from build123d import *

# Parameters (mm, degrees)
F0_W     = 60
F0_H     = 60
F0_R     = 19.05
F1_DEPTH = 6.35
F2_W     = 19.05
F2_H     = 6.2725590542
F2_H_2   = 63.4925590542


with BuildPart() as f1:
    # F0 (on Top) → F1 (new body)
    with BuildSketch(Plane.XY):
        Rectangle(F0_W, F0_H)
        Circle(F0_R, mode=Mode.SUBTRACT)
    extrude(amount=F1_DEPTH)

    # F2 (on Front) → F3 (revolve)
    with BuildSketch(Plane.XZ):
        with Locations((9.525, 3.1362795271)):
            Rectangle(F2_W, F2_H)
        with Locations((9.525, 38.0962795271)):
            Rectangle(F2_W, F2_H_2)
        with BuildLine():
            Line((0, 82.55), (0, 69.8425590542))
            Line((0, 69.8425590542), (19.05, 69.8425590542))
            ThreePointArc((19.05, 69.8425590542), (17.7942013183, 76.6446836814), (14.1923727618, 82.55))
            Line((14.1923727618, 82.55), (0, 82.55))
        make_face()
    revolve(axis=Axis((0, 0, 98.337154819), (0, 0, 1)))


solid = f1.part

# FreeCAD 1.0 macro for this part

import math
import FreeCAD as App
import Part
import Sketcher
from FreeCAD import Vector
Q = App.Units.Quantity


def add_polygon(sketch, points):
    """Adds a closed chain of lines whose ends are joined by coincident constraints."""
    first, n = sketch.GeometryCount, len(points)
    for a, b in zip(points, points[1:] + points[:1]):
        sketch.addGeometry(Part.LineSegment(App.Vector(*a, 0), App.Vector(*b, 0)), False)
    for i in range(n):
        sketch.addConstraint(Sketcher.Constraint("Coincident", first + i, 2, first + (i + 1) % n, 1))

doc = App.newDocument("Part")
body = doc.addObject("PartDesign::Body", "Body")
body.AllowCompound = True

# Sketch on XY plane
sketch1 = body.newObject("Sketcher::SketchObject", "Sketch")
sketch1.AttachmentSupport = (doc.getObject("XY_Plane"), [""])
sketch1.MapMode = "FlatFace"
add_polygon(sketch1, [(-30, 30), (-30, -30), (30, -30), (30, 30)])  # lines 0-3
sketch1.addGeometry(Part.Circle(Vector(0, 0, 0), Vector(0, 0, 1), 19.05), False)  # 4
sketch1.addConstraint(Sketcher.Constraint("Vertical", 0))
sketch1.addConstraint(Sketcher.Constraint("Horizontal", 1))
sketch1.addConstraint(Sketcher.Constraint("Vertical", 2))
sketch1.addConstraint(Sketcher.Constraint("Horizontal", 3))
sketch1.addConstraint(Sketcher.Constraint("Coincident", 4, 3, -1, 1))
sketch1.addConstraint(Sketcher.Constraint("Symmetric", 0, 2, 2, 2, -1, 1))
sketch1.addConstraint(Sketcher.Constraint("Equal", 3, 0))
sketch1.addConstraint(Sketcher.Constraint("Diameter", 4, Q("1.5 in")))
sketch1.addConstraint(Sketcher.Constraint("DistanceX", 1, 1, 1, 2, 60.0))
pad1 = body.newObject("PartDesign::Pad", "Pad")
pad1.Profile = sketch1
pad1.Length = Q("0.25 in")

# Sketch on XZ plane
sketch2 = body.newObject("Sketcher::SketchObject", "Sketch001")
sketch2.AttachmentSupport = (doc.getObject("XZ_Plane"), [""])
sketch2.MapMode = "FlatFace"
add_polygon(sketch2, [(0, 6.272559), (0, 0), (19.05, 0), (19.05, 6.272559)])  # lines 0-3
sketch2.addGeometry(Part.LineSegment(Vector(0, 6.35, 0), Vector(19.05, 6.35, 0)), False)  # 4
sketch2.addGeometry(Part.LineSegment(Vector(19.05, 6.35, 0), Vector(19.05, 69.842559, 0)), False)  # 5
sketch2.addGeometry(Part.ArcOfCircle(Part.Circle(Vector(0, 69.842559, 0), Vector(0, 0, 1), 19.05), math.radians(0), math.radians(41.840348)), False)  # 6
sketch2.addGeometry(Part.LineSegment(Vector(14.192373, 82.55, 0), Vector(0, 82.55, 0)), False)  # 7
sketch2.addGeometry(Part.LineSegment(Vector(0, 82.55, 0), Vector(0, 6.35, 0)), False)  # 8
sketch2.addConstraint(Sketcher.Constraint("Coincident", 4, 2, 5, 1))
sketch2.addConstraint(Sketcher.Constraint("Tangent", 5, 2, 6, 1))
sketch2.addConstraint(Sketcher.Constraint("Coincident", 6, 2, 7, 1))
sketch2.addConstraint(Sketcher.Constraint("Coincident", 7, 2, 8, 1))
sketch2.addConstraint(Sketcher.Constraint("Coincident", 8, 2, 4, 1))
sketch2.addConstraint(Sketcher.Constraint("Vertical", 0))
sketch2.addConstraint(Sketcher.Constraint("Horizontal", 1))
sketch2.addConstraint(Sketcher.Constraint("Vertical", 2))
sketch2.addConstraint(Sketcher.Constraint("Horizontal", 3))
sketch2.addConstraint(Sketcher.Constraint("Horizontal", 4))
sketch2.addConstraint(Sketcher.Constraint("Vertical", 5))
sketch2.addConstraint(Sketcher.Constraint("Horizontal", 7))
sketch2.addConstraint(Sketcher.Constraint("Vertical", 8))
sketch2.addConstraint(Sketcher.Constraint("Coincident", 0, 2, -1, 1))
sketch2.addConstraint(Sketcher.Constraint("PointOnObject", 6, 3, -2))
sketch2.addConstraint(Sketcher.Constraint("PointOnObject", 7, 2, -2))
sketch2.addConstraint(Sketcher.Constraint("Vertical", 2, 2, 4, 2))
sketch2.addConstraint(Sketcher.Constraint("DistanceY", 8, 2, 8, 1, Q("3 in")))
sketch2.addConstraint(Sketcher.Constraint("Radius", 6, Q("0.75 in")))
sketch2.addConstraint(Sketcher.Constraint("DistanceY", -1, 1, 4, 2, Q("0.25 in")))
sketch2.addConstraint(Sketcher.Constraint("DistanceY", 0, 2, 0, 1, 6.272559))
sketch2.addConstraint(Sketcher.Constraint("DistanceY", 5, 1, 5, 2, 63.492559))
revolution = body.newObject("PartDesign::Revolution", "Revolution")
revolution.Profile = sketch2
revolution.ReferenceAxis = (sketch2, ["V_Axis"])
revolution.Angle = 360

doc.recompute()
